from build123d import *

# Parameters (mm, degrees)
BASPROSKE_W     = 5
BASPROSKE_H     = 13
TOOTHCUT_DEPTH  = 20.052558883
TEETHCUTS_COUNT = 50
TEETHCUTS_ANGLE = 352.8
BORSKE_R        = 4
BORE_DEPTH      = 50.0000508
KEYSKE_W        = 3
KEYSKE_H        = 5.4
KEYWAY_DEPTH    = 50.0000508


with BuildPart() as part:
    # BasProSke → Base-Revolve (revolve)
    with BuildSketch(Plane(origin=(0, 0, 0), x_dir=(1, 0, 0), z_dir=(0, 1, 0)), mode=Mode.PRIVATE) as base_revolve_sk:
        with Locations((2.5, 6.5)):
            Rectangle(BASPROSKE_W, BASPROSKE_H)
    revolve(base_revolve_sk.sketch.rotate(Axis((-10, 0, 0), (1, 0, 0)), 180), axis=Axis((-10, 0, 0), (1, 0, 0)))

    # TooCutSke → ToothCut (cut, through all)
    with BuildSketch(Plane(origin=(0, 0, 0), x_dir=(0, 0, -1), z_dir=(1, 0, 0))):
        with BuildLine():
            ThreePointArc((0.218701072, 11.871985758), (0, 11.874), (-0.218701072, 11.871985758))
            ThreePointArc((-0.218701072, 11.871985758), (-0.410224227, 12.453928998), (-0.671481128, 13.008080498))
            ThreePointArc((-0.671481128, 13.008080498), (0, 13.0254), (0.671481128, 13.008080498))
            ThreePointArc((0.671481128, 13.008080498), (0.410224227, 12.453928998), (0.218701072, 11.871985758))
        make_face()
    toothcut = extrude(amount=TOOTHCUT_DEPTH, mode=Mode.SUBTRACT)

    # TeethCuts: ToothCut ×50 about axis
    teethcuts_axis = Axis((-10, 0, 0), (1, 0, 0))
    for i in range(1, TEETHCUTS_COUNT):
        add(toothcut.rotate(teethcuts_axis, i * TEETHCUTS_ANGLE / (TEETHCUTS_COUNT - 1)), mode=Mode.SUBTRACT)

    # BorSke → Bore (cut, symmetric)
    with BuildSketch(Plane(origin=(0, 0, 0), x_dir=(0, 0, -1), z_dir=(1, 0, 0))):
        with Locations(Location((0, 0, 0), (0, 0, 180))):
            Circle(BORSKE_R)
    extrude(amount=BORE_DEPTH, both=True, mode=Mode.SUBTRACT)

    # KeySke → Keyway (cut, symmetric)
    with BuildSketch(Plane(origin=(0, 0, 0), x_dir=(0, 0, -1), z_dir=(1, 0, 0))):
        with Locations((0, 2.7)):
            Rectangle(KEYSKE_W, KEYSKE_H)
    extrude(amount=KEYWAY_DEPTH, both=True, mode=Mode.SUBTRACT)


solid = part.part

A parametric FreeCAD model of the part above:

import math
import FreeCAD as App
import Part
import Sketcher

V = App.Vector

doc = App.newDocument("Part")
body = doc.addObject("PartDesign::Body", "Body")

# Sketch on XZ plane
sketch1 = body.newObject("Sketcher::SketchObject", "Sketch")
sketch1.AttachmentSupport = (doc.getObject("XZ_Plane"), [""])
sketch1.MapMode = "FlatFace"
sketch1.addGeometry(Part.LineSegment(V(0, -13, 0), V(0, 0, 0)), False)
sketch1.addGeometry(Part.LineSegment(V(0, 0, 0), V(5, 0, 0)), False)
sketch1.addGeometry(Part.LineSegment(V(5, 0, 0), V(5, -13, 0)), False)
sketch1.addGeometry(Part.LineSegment(V(5, -13, 0), V(0, -13, 0)), False)
sketch1.addConstraint(Sketcher.Constraint("Coincident", 0, 2, 1, 1))
sketch1.addConstraint(Sketcher.Constraint("Coincident", 1, 2, 2, 1))
sketch1.addConstraint(Sketcher.Constraint("Coincident", 2, 2, 3, 1))
sketch1.addConstraint(Sketcher.Constraint("Coincident", 3, 2, 0, 1))
sketch1.addConstraint(Sketcher.Constraint("Vertical", 0))
sketch1.addConstraint(Sketcher.Constraint("Horizontal", 1))
sketch1.addConstraint(Sketcher.Constraint("Vertical", 2))
sketch1.addConstraint(Sketcher.Constraint("Horizontal", 3))
sketch1.addConstraint(Sketcher.Constraint("Coincident", 0, 2, -1, 1))
sketch1.addConstraint(Sketcher.Constraint("DistanceX", 1, 1, 1, 2, 5.0))
sketch1.addConstraint(Sketcher.Constraint("DistanceY", 0, 1, 0, 2, 13.0))
revolution = body.newObject("PartDesign::Revolution", "Revolution")
revolution.Profile = sketch1
revolution.ReferenceAxis = (sketch1, ["H_Axis"])
revolution.Angle = 360

# Sketch on YZ plane
sketch2 = body.newObject("Sketcher::SketchObject", "Sketch001")
sketch2.AttachmentSupport = (doc.getObject("YZ_Plane"), [""])
sketch2.MapMode = "FlatFace"
sketch2.addGeometry(Part.ArcOfCircle(Part.Circle(V(0.000001, 0, 0), V(0, 0, 1), 11.873999), math.radians(-1.055361), math.radians(1.055361)), False)
sketch2.addGeometry(Part.ArcOfCircle(Part.Circle(V(10.60282, -5.054941, 0), V(0, 0, 1), 5), math.radians(61.245861), math.radians(75.295545)), False)
sketch2.addGeometry(Part.ArcOfCircle(Part.Circle(V(0, 0, 0), V(0, 0, 1), 13.0254), math.radians(-2.955003), math.radians(2.955003)), False)
sketch2.addGeometry(Part.ArcOfCircle(Part.Circle(V(10.60282, 5.054941, 0), V(0, 0, 1), 5), math.radians(-75.295545), math.radians(-61.245861)), False)
sketch2.addConstraint(Sketcher.Constraint("Coincident", 0, 1, 1, 2))
sketch2.addConstraint(Sketcher.Constraint("Coincident", 1, 1, 2, 1))
sketch2.addConstraint(Sketcher.Constraint("Coincident", 2, 2, 3, 2))
sketch2.addConstraint(Sketcher.Constraint("Coincident", 3, 1, 0, 2))
sketch2.addConstraint(Sketcher.Constraint("Coincident", 0, 3, -1, 1))
sketch2.addConstraint(Sketcher.Constraint("Coincident", 2, 3, -1, 1))
sketch2.addConstraint(Sketcher.Constraint("Equal", 1, 3))
sketch2.addConstraint(Sketcher.Constraint("Symmetric", 1, 3, 3, 3, -1))
sketch2.addConstraint(Sketcher.Constraint("Radius", 1, 5.0))
sketch2.addConstraint(Sketcher.Constraint("Radius", 0, 11.873999))
sketch2.addConstraint(Sketcher.Constraint("Radius", 2, 13.0254))
sketch2.addConstraint(Sketcher.Constraint("DistanceY", 0, 1, -1, 1, 0.218701))
sketch2.addConstraint(Sketcher.Constraint("DistanceX", -1, 1, 1, 3, 10.60282))
pocket1 = body.newObject("PartDesign::Pocket", "Pocket")
pocket1.Profile = sketch2
pocket1.Type = "ThroughAll"
pocket1.Reversed = True
doc.recompute()

polarpattern = body.newObject("PartDesign::PolarPattern", "PolarPattern")
polarpattern.Originals = [pocket1]
polarpattern.Axis = (doc.getObject("X_Axis"), [""])
polarpattern.Angle = 360
polarpattern.Occurrences = 50
body.Tip = polarpattern

# Sketch on YZ plane
sketch3 = body.newObject("Sketcher::SketchObject", "Sketch002")
sketch3.AttachmentSupport = (doc.getObject("YZ_Plane"), [""])
sketch3.MapMode = "FlatFace"
sketch3.addGeometry(Part.Circle(V(0, 0, 0), V(0, 0, 1), 4), False)
sketch3.addConstraint(Sketcher.Constraint("Coincident", 0, 3, -1, 1))
sketch3.addConstraint(Sketcher.Constraint("Diameter", 0, 8.0))
pocket2 = body.newObject("PartDesign::Pocket", "Pocket001")
pocket2.Profile = sketch3
pocket2.Length = 100.000102
pocket2.Midplane = True

# Sketch on YZ plane
sketch4 = body.newObject("Sketcher::SketchObject", "Sketch003")
sketch4.AttachmentSupport = (doc.getObject("YZ_Plane"), [""])
sketch4.MapMode = "FlatFace"
sketch4.addGeometry(Part.LineSegment(V(5.4, 1.5, 0), V(0, 1.5, 0)), False)
sketch4.addGeometry(Part.LineSegment(V(0, 1.5, 0), V(0, -1.5, 0)), False)
sketch4.addGeometry(Part.LineSegment(V(0, -1.5, 0), V(5.4, -1.5, 0)), False)
sketch4.addGeometry(Part.LineSegment(V(5.4, -1.5, 0), V(5.4, 1.5, 0)), False)
sketch4.addConstraint(Sketcher.Constraint("Coincident", 0, 2, 1, 1))
sketch4.addConstraint(Sketcher.Constraint("Coincident", 1, 2, 2, 1))
sketch4.addConstraint(Sketcher.Constraint("Coincident", 2, 2, 3, 1))
sketch4.addConstraint(Sketcher.Constraint("Coincident", 3, 2, 0, 1))
sketch4.addConstraint(Sketcher.Constraint("Horizontal", 0))
sketch4.addConstraint(Sketcher.Constraint("Vertical", 1))
sketch4.addConstraint(Sketcher.Constraint("Horizontal", 2))
sketch4.addConstraint(Sketcher.Constraint("Vertical", 3))
sketch4.addConstraint(Sketcher.Constraint("Symmetric", 0, 2, 1, 2, -1, 1))
sketch4.addConstraint(Sketcher.Constraint("DistanceY", 1, 2, 1, 1, 3.0))
sketch4.addConstraint(Sketcher.Constraint("DistanceX", 0, 2, 0, 1, 5.4))
pocket3 = body.newObject("PartDesign::Pocket", "Pocket002")
pocket3.Profile = sketch4
pocket3.Length = 100.000102
pocket3.Midplane = True

doc.recompute()
